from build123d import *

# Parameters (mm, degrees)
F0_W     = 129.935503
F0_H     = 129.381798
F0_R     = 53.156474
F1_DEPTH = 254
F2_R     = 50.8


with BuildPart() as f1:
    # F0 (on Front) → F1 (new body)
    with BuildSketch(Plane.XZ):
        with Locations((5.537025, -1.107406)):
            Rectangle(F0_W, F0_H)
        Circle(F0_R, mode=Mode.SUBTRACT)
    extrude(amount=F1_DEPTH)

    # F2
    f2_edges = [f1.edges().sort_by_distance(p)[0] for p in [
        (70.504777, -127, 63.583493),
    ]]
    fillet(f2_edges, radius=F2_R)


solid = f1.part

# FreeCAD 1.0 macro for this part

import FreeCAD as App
import Part
import Sketcher
from FreeCAD import Vector
Q = App.Units.Quantity


def edges_at(feature, points):
    """Names of the edges that pass closest to the given points."""
    edges = feature.Shape.Edges
    near = lambda p: min(range(len(edges)), key=lambda i: edges[i].distToShape(Part.Vertex(*p))[0])
    return sorted({f"Edge{near(p) + 1}" for p in points})

doc = App.newDocument("Part")
body = doc.addObject("PartDesign::Body", "Body")

# Sketch on XZ plane
sketch1 = body.newObject("Sketcher::SketchObject", "Sketch")
sketch1.AttachmentSupport = (doc.getObject("XZ_Plane"), [""])
sketch1.MapMode = "FlatFace"
sketch1.addGeometry(Part.LineSegment(Vector(-59.430726, 63.583493, 0), Vector(-59.430726, -65.798305, 0)), False)
sketch1.addGeometry(Part.LineSegment(Vector(-59.430726, -65.798305, 0), Vector(70.504777, -65.798305, 0)), False)
sketch1.addGeometry(Part.LineSegment(Vector(70.504777, -65.798305, 0), Vector(70.504777, 63.583493, 0)), False)
sketch1.addGeometry(Part.LineSegment(Vector(70.504777, 63.583493, 0), Vector(-59.430726, 63.583493, 0)), False)
sketch1.addGeometry(Part.Circle(Vector(0, 0, 0), Vector(0, 0, 1), 53.156474), False)
sketch1.addConstraint(Sketcher.Constraint("Coincident", 0, 2, 1, 1))
sketch1.addConstraint(Sketcher.Constraint("Coincident", 1, 2, 2, 1))
sketch1.addConstraint(Sketcher.Constraint("Coincident", 2, 2, 3, 1))
sketch1.addConstraint(Sketcher.Constraint("Coincident", 3, 2, 0, 1))
sketch1.addConstraint(Sketcher.Constraint("Vertical", 0))
sketch1.addConstraint(Sketcher.Constraint("Horizontal", 1))
sketch1.addConstraint(Sketcher.Constraint("Vertical", 2))
sketch1.addConstraint(Sketcher.Constraint("Horizontal", 3))
sketch1.addConstraint(Sketcher.Constraint("Coincident", 4, 3, -1, 1))
sketch1.addConstraint(Sketcher.Constraint("Diameter", 4, Q("106.312948 mm")))
sketch1.addConstraint(Sketcher.Constraint("DistanceY", 0, 2, 0, 1, Q("129.381798 mm")))
sketch1.addConstraint(Sketcher.Constraint("DistanceX", 1, 1, 1, 2, Q("129.935503 mm")))
sketch1.addConstraint(Sketcher.Constraint("DistanceX", 0, 2, -1, 1, Q("59.430726 mm")))
sketch1.addConstraint(Sketcher.Constraint("DistanceY", 0, 2, -1, 1, Q("65.798305 mm")))
pad1 = body.newObject("PartDesign::Pad", "Pad")
pad1.Profile = sketch1
pad1.Length = Q("10 in")
doc.recompute()

fillet = body.newObject("PartDesign::Fillet", "Fillet")
fillet.Base = (pad1, edges_at(pad1, [(70.505, -127, 63.583)]))
fillet.Radius = Q("2 in")

doc.recompute()
